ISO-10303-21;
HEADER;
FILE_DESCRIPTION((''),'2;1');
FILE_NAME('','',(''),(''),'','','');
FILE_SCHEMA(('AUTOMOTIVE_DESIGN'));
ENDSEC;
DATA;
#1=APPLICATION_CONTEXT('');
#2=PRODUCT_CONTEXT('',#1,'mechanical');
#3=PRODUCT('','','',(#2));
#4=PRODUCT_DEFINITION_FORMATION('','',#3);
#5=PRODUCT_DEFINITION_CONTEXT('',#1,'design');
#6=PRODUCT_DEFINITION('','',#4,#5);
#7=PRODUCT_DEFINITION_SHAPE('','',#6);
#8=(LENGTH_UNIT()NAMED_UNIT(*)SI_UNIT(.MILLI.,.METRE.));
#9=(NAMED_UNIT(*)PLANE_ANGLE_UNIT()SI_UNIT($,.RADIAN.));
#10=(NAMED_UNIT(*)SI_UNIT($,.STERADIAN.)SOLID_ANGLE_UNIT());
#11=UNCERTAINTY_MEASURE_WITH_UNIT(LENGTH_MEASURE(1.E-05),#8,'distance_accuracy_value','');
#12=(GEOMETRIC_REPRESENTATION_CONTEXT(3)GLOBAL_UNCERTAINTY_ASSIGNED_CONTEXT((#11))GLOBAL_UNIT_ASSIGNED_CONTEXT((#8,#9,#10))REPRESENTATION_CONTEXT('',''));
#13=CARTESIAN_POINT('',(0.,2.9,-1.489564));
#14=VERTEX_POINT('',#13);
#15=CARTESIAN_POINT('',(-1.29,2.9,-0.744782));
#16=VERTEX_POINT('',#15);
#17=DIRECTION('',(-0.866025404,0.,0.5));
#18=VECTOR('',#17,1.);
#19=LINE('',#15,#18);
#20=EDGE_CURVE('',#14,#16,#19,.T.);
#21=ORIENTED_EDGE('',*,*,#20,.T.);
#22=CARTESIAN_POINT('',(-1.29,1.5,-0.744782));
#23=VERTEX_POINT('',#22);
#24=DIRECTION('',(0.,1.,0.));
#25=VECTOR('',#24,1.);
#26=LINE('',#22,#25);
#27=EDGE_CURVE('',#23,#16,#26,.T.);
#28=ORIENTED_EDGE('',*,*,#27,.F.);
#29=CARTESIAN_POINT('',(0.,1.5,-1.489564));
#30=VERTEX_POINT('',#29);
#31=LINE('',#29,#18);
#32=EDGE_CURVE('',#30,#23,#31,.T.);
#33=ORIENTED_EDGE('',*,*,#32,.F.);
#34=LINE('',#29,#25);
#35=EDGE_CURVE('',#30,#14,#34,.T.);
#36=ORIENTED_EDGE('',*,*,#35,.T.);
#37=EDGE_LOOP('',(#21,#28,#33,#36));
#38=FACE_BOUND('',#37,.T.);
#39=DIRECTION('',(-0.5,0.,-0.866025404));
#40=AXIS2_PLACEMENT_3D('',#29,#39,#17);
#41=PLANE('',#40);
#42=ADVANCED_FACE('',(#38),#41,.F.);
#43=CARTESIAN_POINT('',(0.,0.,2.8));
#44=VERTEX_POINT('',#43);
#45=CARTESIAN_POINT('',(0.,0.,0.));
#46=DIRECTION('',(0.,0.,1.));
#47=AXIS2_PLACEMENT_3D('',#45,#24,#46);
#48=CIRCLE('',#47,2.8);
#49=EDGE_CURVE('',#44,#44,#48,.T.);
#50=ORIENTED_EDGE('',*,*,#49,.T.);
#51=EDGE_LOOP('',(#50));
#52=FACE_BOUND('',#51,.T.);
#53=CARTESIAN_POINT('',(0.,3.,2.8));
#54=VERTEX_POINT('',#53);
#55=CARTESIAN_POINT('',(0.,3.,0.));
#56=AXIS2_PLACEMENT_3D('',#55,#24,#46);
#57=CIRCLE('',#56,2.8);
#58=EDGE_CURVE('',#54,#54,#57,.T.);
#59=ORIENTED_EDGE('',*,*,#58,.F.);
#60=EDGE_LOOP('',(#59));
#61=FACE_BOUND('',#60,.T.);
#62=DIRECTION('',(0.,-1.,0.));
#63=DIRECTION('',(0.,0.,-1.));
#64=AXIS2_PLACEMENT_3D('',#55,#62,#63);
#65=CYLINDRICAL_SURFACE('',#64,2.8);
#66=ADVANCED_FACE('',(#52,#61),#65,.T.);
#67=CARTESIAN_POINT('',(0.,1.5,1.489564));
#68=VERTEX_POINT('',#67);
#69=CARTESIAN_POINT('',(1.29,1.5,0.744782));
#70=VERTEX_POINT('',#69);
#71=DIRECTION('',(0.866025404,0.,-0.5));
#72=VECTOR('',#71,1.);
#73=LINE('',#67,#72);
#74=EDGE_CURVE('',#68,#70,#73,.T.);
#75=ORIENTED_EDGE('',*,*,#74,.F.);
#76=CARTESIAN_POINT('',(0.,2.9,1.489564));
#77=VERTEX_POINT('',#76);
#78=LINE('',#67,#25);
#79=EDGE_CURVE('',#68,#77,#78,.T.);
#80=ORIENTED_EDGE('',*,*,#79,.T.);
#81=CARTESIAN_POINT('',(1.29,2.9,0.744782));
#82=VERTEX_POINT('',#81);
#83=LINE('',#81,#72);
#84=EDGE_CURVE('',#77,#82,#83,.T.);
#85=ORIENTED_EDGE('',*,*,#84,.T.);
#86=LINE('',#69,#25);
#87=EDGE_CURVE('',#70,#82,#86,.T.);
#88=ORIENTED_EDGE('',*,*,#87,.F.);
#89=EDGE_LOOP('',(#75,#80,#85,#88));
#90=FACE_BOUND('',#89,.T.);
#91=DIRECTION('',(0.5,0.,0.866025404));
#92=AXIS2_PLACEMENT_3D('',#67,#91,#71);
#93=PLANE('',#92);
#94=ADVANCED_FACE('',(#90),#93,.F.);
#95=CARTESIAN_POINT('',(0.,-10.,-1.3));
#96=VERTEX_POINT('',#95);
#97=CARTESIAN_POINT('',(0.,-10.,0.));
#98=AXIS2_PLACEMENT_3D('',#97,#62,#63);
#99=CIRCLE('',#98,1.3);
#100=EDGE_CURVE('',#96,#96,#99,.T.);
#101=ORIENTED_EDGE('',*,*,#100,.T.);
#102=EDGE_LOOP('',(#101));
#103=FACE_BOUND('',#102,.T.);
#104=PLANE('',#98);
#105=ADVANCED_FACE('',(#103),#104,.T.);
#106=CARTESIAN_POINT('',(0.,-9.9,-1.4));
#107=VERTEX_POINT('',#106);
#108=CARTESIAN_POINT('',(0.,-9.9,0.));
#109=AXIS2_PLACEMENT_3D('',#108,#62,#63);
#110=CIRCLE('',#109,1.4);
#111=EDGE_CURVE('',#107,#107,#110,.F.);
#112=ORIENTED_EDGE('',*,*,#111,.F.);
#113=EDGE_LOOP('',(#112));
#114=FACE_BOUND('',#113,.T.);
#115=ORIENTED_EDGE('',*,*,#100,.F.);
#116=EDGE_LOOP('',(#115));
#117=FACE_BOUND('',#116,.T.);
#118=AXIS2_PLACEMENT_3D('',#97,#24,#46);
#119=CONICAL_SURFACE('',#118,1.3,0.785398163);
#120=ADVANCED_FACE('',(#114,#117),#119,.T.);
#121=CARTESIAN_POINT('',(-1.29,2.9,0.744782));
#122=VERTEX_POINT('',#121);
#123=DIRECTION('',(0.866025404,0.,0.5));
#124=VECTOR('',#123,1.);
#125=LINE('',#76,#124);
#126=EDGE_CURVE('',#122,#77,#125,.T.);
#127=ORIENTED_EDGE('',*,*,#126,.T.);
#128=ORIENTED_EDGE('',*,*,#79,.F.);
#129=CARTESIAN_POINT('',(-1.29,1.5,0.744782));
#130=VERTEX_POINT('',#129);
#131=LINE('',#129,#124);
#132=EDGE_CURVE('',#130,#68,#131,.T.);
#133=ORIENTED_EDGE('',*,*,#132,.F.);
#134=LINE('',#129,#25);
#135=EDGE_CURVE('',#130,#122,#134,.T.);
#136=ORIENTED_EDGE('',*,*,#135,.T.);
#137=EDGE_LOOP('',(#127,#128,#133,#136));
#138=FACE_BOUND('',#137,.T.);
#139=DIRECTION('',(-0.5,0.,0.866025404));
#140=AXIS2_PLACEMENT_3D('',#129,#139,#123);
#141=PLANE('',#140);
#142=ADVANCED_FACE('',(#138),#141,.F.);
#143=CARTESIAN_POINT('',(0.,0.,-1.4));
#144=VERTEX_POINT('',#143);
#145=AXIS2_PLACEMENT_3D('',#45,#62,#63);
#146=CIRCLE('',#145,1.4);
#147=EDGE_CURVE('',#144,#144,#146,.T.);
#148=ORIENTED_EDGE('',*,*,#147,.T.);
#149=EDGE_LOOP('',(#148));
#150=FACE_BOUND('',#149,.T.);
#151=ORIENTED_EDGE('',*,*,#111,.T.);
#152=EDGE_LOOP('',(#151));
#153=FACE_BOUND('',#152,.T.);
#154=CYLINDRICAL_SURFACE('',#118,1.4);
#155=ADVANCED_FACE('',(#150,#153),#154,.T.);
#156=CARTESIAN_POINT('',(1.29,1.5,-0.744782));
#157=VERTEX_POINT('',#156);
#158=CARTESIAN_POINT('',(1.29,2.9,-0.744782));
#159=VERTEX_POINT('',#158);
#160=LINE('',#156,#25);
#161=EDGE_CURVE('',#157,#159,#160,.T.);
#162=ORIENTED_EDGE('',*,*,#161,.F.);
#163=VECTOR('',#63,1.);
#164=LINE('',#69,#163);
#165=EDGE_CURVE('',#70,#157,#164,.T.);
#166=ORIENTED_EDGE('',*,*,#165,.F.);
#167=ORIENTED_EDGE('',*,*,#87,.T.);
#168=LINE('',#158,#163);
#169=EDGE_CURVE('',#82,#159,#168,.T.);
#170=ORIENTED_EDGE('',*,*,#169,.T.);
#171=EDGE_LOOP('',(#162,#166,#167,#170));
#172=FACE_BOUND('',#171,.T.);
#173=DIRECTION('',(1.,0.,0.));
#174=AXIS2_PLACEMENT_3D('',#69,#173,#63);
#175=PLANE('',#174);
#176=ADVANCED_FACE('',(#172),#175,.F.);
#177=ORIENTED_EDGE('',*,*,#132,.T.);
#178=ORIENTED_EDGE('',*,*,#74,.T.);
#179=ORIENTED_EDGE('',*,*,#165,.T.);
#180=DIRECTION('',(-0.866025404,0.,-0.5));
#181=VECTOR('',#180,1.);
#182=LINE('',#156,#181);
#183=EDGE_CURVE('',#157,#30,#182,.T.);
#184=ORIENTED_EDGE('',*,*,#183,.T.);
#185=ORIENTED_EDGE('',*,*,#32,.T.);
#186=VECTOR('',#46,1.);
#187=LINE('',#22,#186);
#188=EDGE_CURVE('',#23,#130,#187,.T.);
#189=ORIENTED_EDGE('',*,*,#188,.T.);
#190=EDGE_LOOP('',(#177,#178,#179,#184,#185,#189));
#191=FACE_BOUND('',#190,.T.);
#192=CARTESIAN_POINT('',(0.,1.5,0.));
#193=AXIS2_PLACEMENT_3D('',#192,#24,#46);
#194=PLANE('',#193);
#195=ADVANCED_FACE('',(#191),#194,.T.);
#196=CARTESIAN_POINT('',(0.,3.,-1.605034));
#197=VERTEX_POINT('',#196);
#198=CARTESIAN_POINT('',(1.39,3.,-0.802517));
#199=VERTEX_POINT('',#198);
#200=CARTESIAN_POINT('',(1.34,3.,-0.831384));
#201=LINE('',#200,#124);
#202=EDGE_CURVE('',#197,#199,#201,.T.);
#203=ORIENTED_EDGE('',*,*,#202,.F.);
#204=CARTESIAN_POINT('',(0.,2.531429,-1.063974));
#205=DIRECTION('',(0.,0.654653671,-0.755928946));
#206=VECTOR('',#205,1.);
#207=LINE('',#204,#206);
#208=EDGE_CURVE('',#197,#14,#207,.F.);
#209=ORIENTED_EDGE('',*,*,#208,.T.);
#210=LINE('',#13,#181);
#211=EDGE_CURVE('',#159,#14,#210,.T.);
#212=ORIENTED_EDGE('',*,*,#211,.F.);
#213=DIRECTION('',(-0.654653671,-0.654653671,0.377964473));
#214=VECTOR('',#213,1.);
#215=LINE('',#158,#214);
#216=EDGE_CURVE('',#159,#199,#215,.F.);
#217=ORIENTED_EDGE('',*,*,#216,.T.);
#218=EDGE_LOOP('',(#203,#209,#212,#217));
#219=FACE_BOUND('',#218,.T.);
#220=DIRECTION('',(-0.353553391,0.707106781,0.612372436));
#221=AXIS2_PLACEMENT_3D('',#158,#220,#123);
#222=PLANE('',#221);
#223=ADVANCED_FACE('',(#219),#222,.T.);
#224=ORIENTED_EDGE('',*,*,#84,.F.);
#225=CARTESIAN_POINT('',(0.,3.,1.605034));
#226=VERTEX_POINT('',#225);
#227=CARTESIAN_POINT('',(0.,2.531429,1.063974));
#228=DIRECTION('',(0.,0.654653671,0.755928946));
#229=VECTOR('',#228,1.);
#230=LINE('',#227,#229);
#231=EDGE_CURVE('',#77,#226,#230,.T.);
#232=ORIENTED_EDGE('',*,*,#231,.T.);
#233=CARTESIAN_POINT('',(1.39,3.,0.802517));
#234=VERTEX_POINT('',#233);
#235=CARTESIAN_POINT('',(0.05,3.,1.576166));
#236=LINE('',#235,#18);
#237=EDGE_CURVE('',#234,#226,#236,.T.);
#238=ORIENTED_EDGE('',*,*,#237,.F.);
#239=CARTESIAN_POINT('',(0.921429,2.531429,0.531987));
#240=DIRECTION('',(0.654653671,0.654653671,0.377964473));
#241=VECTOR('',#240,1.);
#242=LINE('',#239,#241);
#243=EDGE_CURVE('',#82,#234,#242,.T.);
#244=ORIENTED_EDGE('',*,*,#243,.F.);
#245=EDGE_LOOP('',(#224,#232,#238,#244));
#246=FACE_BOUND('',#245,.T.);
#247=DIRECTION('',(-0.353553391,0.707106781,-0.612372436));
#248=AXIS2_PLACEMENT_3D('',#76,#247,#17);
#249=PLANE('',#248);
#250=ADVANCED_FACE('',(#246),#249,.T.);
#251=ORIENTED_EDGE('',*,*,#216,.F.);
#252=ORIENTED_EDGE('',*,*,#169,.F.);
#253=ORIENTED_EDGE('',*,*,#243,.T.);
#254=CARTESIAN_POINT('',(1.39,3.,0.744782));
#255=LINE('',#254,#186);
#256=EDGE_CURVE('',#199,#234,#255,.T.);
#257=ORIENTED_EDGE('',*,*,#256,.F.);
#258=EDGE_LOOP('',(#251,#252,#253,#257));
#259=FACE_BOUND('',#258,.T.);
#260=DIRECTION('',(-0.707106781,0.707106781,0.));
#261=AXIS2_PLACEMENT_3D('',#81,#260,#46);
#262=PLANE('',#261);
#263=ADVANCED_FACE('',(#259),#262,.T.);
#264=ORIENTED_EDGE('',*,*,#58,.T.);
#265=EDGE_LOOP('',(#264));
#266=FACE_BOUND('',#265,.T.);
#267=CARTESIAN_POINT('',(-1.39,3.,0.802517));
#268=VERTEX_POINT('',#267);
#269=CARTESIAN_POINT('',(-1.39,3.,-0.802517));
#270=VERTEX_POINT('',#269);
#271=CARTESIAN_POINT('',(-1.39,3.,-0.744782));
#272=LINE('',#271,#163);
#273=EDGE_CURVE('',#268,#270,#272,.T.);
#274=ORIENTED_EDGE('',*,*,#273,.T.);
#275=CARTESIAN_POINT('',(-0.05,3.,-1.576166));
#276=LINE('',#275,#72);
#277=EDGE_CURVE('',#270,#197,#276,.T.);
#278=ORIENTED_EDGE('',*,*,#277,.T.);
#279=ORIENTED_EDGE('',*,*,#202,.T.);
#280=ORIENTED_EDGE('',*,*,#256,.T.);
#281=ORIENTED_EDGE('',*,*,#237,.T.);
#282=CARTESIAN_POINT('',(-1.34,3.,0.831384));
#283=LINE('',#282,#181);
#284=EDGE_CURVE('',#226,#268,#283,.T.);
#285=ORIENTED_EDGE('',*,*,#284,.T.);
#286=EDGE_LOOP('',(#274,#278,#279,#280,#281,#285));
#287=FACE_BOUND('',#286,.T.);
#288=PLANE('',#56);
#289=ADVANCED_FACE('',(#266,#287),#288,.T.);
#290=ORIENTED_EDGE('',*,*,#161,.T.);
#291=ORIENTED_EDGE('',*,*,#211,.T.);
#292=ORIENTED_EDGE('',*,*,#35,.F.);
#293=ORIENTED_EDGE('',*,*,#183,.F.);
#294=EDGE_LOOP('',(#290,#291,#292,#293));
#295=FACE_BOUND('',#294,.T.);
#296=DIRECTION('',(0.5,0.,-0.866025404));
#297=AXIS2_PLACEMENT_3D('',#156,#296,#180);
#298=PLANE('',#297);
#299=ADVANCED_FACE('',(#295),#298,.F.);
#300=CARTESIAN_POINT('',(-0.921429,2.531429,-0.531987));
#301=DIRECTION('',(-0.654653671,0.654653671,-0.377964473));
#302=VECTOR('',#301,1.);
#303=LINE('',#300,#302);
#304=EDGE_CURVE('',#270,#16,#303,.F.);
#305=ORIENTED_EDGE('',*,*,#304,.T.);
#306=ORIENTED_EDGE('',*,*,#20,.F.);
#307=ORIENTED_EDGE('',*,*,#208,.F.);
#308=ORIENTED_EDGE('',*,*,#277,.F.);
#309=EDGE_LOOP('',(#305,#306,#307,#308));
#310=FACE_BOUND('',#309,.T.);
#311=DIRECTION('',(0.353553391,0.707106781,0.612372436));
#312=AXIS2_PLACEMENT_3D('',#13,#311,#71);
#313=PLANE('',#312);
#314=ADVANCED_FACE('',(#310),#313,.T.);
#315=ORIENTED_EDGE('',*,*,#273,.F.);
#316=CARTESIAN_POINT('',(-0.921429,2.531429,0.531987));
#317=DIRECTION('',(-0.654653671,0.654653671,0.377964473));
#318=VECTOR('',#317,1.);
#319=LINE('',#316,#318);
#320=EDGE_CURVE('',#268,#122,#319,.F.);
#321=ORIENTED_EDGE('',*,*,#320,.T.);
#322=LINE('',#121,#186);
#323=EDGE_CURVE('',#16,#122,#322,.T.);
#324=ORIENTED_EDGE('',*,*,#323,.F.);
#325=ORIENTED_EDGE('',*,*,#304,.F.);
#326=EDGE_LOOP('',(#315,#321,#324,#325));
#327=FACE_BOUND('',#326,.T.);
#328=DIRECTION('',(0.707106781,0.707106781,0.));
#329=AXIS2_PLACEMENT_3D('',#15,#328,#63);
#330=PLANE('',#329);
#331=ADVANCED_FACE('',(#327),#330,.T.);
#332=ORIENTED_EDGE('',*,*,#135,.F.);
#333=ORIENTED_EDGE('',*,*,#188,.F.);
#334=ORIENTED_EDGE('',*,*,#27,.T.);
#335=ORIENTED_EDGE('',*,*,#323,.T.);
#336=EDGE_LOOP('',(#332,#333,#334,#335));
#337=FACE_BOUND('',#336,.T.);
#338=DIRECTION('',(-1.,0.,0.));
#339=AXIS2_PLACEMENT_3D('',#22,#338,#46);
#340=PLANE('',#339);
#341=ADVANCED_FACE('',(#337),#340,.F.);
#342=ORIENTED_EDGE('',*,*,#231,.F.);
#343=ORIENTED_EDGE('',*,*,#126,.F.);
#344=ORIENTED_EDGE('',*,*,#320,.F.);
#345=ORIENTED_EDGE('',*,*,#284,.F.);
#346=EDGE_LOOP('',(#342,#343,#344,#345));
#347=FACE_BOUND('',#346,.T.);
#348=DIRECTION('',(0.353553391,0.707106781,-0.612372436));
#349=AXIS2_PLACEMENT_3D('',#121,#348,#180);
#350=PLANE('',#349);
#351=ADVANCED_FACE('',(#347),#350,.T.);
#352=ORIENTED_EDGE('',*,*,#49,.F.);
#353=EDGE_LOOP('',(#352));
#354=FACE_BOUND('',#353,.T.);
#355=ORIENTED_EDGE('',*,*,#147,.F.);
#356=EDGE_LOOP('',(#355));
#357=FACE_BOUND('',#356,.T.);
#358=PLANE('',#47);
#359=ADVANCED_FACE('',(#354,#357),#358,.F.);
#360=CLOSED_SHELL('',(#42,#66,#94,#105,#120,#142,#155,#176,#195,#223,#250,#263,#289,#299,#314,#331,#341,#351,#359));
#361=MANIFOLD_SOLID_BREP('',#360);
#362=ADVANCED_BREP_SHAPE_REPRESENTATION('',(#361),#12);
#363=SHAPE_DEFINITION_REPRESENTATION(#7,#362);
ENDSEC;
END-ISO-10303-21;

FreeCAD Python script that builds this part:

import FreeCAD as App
import Part
import Sketcher
Q = App.Units.Quantity


def edges_at(feature, points):
    """Names of the edges that pass closest to the given points."""
    edges = feature.Shape.Edges
    near = lambda p: min(range(len(edges)), key=lambda i: edges[i].distToShape(Part.Vertex(*p))[0])
    return sorted({f"Edge{near(p) + 1}" for p in points})


def add_polygon(sketch, points):
    """Adds a closed chain of lines whose ends are joined by coincident constraints."""
    first, n = sketch.GeometryCount, len(points)
    for a, b in zip(points, points[1:] + points[:1]):
        sketch.addGeometry(Part.LineSegment(App.Vector(*a, 0), App.Vector(*b, 0)), False)
    for i in range(n):
        sketch.addConstraint(Sketcher.Constraint("Coincident", first + i, 2, first + (i + 1) % n, 1))

doc = App.newDocument("Part")
body = doc.addObject("PartDesign::Body", "Body")

# Sketch on XZ plane
sketch1 = body.newObject("Sketcher::SketchObject", "Sketch")
sketch1.AttachmentSupport = (doc.getObject("XZ_Plane"), [""])
sketch1.MapMode = "FlatFace"
sketch1.addGeometry(Part.Circle(App.Vector(0, 0, 0), App.Vector(0, 0, 1), 2.8), False)
sketch1.addConstraint(Sketcher.Constraint("Coincident", 0, 3, -1, 1))
sketch1.addConstraint(Sketcher.Constraint("Diameter", 0, Q("5.6 mm")))
pad1 = body.newObject("PartDesign::Pad", "Pad")
pad1.Profile = sketch1
pad1.Length = 3
pad1.Reversed = True

# Sketch on XZ plane
sketch2 = body.newObject("Sketcher::SketchObject", "Sketch001")
sketch2.AttachmentSupport = (doc.getObject("XZ_Plane"), [""])
sketch2.MapMode = "FlatFace"
sketch2.AttachmentOffset = App.Placement(App.Vector(0, 0, -3), App.Rotation())
add_polygon(sketch2, [(0, 1.5), (1.3, 0.7), (1.3, -0.7), (0, -1.5), (-1.3, -0.7), (-1.3, 0.7)])  # lines 0-5
sketch2.addConstraint(Sketcher.Constraint("Vertical", 1))
sketch2.addConstraint(Sketcher.Constraint("Vertical", 4))
sketch2.addConstraint(Sketcher.Constraint("Symmetric", 0, 2, 3, 2, -1, 1))
sketch2.addConstraint(Sketcher.Constraint("Symmetric", 2, 2, 5, 2, -1, 1))
sketch2.addConstraint(Sketcher.Constraint("PointOnObject", 2, 2, -2))
sketch2.addConstraint(Sketcher.Constraint("Parallel", 2, 5))
sketch2.addConstraint(Sketcher.Constraint("Horizontal", 1, 2, 3, 2))
sketch2.addConstraint(Sketcher.Constraint("Angle", 0, Q("-30 deg")))
sketch2.addConstraint(Sketcher.Constraint("DistanceX", -1, 1, 0, 2, Q("1.29 mm")))
sketch2.addConstraint(Sketcher.Constraint("DistanceY", 1, 2, 1, 1, Q("1.489564 mm")))
pocket1 = body.newObject("PartDesign::Pocket", "Pocket")
pocket1.Profile = sketch2
pocket1.Length = 1.5
pocket1.Reversed = True

# Sketch on XZ plane
sketch3 = body.newObject("Sketcher::SketchObject", "Sketch002")
sketch3.AttachmentSupport = (doc.getObject("XZ_Plane"), [""])
sketch3.MapMode = "FlatFace"
sketch3.addGeometry(Part.Circle(App.Vector(0, 0, 0), App.Vector(0, 0, 1), 1.4), False)
sketch3.addConstraint(Sketcher.Constraint("Coincident", 0, 3, -1, 1))
sketch3.addConstraint(Sketcher.Constraint("Diameter", 0, Q("2.8 mm")))
pad2 = body.newObject("PartDesign::Pad", "Pad001")
pad2.Profile = sketch3
pad2.Length = 10
doc.recompute()

chamfer = body.newObject("PartDesign::Chamfer", "Chamfer")
chamfer.Base = (pad2, edges_at(pad2, [
    (-0.645, 3, 1.117),
    (0.645, 3, 1.117),
    (1.29, 3, 0),
    (0.645, 3, -1.117),
    (-0.645, 3, -1.117),
    (-1.29, 3, 0),
    (-1.4, -10, 0),
]))
chamfer.Size = 0.1

doc.recompute()
